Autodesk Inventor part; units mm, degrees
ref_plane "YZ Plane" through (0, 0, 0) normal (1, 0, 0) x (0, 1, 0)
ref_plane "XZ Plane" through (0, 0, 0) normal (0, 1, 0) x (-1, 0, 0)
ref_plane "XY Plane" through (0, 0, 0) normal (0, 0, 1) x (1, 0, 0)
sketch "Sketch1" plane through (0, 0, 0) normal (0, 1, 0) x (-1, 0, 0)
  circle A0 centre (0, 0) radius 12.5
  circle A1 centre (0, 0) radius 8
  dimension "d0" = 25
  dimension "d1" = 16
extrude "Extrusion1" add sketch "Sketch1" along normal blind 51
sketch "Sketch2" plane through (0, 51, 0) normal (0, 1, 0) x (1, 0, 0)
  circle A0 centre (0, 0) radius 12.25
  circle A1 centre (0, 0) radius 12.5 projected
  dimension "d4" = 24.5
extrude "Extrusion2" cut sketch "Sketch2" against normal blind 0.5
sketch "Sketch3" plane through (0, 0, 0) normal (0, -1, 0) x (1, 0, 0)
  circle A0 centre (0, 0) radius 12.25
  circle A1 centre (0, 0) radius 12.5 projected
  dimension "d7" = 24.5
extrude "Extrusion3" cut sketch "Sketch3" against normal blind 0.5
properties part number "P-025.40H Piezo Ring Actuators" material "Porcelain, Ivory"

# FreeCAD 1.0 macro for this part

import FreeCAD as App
import Part
import Sketcher

V = App.Vector

doc = App.newDocument("Part")
body = doc.addObject("PartDesign::Body", "Body")

# Sketch on XZ plane
sketch1 = body.newObject("Sketcher::SketchObject", "Sketch")
sketch1.AttachmentSupport = (doc.getObject("XZ_Plane"), [""])
sketch1.MapMode = "FlatFace"
sketch1.addGeometry([
    Part.Circle(V(0, 0, 0), V(0, 0, 1), 12.5),
    Part.Circle(V(0, 0, 0), V(0, 0, 1), 8),
], False)
sketch1.addConstraint([
    Sketcher.Constraint("Coincident", 0, 3, -1, 1),
    Sketcher.Constraint("Coincident", 1, 3, -1, 1),
    Sketcher.Constraint("Diameter", 0, 25.0),
    Sketcher.Constraint("Diameter", 1, 16.0),
])
pad1 = body.newObject("PartDesign::Pad", "Pad")
pad1.Profile = sketch1
pad1.Length = 51
pad1.Reversed = True

# Sketch on XZ plane
sketch2 = body.newObject("Sketcher::SketchObject", "Sketch001")
sketch2.AttachmentSupport = (doc.getObject("XZ_Plane"), [""])
sketch2.MapMode = "FlatFace"
sketch2.AttachmentOffset = App.Placement(V(0, 0, -51), App.Rotation())
sketch2.addGeometry([
    Part.Circle(V(0, 0, 0), V(0, 0, 1), 12.5),
    Part.Circle(V(0, 0, 0), V(0, 0, 1), 12.25),
], False)
sketch2.addConstraint([
    Sketcher.Constraint("Coincident", 0, 3, -1, 1),
    Sketcher.Constraint("Coincident", 1, 3, -1, 1),
    Sketcher.Constraint("Diameter", 1, 24.5),
    Sketcher.Constraint("Diameter", 0, 25.0),
])
pocket1 = body.newObject("PartDesign::Pocket", "Pocket")
pocket1.Profile = sketch2
pocket1.Length = 0.5
pocket1.Reversed = True

# Sketch on XZ plane
sketch3 = body.newObject("Sketcher::SketchObject", "Sketch002")
sketch3.AttachmentSupport = (doc.getObject("XZ_Plane"), [""])
sketch3.MapMode = "FlatFace"
sketch3.addGeometry([
    Part.Circle(V(0, 0, 0), V(0, 0, 1), 12.5),
    Part.Circle(V(0, 0, 0), V(0, 0, 1), 12.25),
], False)
sketch3.addConstraint([
    Sketcher.Constraint("Coincident", 0, 3, -1, 1),
    Sketcher.Constraint("Coincident", 1, 3, -1, 1),
    Sketcher.Constraint("Diameter", 1, 24.5),
    Sketcher.Constraint("Diameter", 0, 25.0),
])
pocket2 = body.newObject("PartDesign::Pocket", "Pocket001")
pocket2.Profile = sketch3
pocket2.Length = 0.5

doc.recompute()
